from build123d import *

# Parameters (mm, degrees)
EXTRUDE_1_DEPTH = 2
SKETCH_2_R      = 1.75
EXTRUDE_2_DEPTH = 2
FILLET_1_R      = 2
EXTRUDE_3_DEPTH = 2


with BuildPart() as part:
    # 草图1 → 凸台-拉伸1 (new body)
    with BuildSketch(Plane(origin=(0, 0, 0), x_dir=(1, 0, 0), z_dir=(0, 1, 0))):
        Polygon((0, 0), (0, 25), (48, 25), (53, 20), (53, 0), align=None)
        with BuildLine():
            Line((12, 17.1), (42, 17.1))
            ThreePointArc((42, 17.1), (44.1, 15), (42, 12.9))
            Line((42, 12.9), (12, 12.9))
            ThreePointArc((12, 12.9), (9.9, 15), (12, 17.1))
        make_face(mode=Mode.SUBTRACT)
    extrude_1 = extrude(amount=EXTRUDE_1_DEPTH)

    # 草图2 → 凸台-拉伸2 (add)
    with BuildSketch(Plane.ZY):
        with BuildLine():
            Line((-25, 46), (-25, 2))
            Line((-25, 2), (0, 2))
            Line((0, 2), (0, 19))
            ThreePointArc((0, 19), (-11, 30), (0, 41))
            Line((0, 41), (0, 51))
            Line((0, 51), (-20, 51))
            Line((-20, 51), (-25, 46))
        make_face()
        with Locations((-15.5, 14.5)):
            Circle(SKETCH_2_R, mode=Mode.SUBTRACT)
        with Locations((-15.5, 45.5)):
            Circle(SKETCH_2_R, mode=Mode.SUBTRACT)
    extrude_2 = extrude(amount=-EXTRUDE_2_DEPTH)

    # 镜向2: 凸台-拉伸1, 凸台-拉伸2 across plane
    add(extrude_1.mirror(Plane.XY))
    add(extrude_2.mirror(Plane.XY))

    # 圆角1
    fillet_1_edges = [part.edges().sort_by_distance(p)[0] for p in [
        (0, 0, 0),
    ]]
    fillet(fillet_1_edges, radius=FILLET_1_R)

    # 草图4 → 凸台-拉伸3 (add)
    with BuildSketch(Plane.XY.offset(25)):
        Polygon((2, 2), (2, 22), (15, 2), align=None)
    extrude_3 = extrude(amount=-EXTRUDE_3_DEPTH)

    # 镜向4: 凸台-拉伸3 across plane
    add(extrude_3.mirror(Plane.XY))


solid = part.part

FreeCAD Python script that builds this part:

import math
import FreeCAD as App
import Part
import Sketcher
Q = App.Units.Quantity


def edges_at(feature, points):
    """Names of the edges that pass closest to the given points."""
    edges = feature.Shape.Edges
    near = lambda p: min(range(len(edges)), key=lambda i: edges[i].distToShape(Part.Vertex(*p))[0])
    return sorted({f"Edge{near(p) + 1}" for p in points})


def add_polygon(sketch, points):
    """Adds a closed chain of lines whose ends are joined by coincident constraints."""
    first, n = sketch.GeometryCount, len(points)
    for a, b in zip(points, points[1:] + points[:1]):
        sketch.addGeometry(Part.LineSegment(App.Vector(*a, 0), App.Vector(*b, 0)), False)
    for i in range(n):
        sketch.addConstraint(Sketcher.Constraint("Coincident", first + i, 2, first + (i + 1) % n, 1))

doc = App.newDocument("Part")
params = doc.addObject("Spreadsheet::Sheet", "Params")
for row, (alias, value) in enumerate([
    ("sketch1_radius", "2.1 mm"),
    ("sketch1_width", "53 mm"),
    ("sketch1_width2", "48 mm"),
    ("sketch1_width3", "30 mm"),
    ("sketch1_height", "25 mm"),
    ("pad1_length", "2 mm"),
    ("sketch2_radius", "11 mm"),
    ("sketch2_diameter", "3.5 mm"),
    ("sketch2_width", "44 mm"),
    ("sketch2_width2", "17 mm"),
    ("sketch2_width3", "10 mm"),
    ("pad2_length", "2 mm"),
    ("fillet_radius", "2 mm"),
    ("sketch3_width", "13 mm"),
    ("sketch3_height", "20 mm"),
    ("pad3_length", "2 mm"),
], start=1):
    params.set(f"A{row}", alias)
    params.set(f"B{row}", "=" + value)
    params.setAlias(f"B{row}", alias)

body = doc.addObject("PartDesign::Body", "Body")

# Sketch on XZ plane
sketch1 = doc.addObject("Sketcher::SketchObject", "Sketch")
body.addObject(sketch1)
sketch1.AttachmentSupport = (doc.XZ_Plane, [""])
sketch1.MapMode = "FlatFace"
add_polygon(sketch1, [(0, -25), (0, 0), (53, 0), (53, -20), (48, -25)])  # lines 0-4
sketch1.addGeometry(Part.LineSegment(App.Vector(12, -17.1, 0), App.Vector(42, -17.1, 0)), False)  # 5
sketch1.addGeometry(Part.ArcOfCircle(Part.Circle(App.Vector(42, -15, 0), App.Vector(0, 0, 1), 2.1), math.radians(-90), math.radians(90)), False)  # 6
sketch1.addGeometry(Part.LineSegment(App.Vector(42, -12.9, 0), App.Vector(12, -12.9, 0)), False)  # 7
sketch1.addGeometry(Part.ArcOfCircle(Part.Circle(App.Vector(12, -15, 0), App.Vector(0, 0, 1), 2.1), math.radians(90), math.radians(270)), False)  # 8
sketch1.addConstraint(Sketcher.Constraint("Tangent", 5, 2, 6, 1))
sketch1.addConstraint(Sketcher.Constraint("Tangent", 6, 2, 7, 1))
sketch1.addConstraint(Sketcher.Constraint("Tangent", 7, 2, 8, 1))
sketch1.addConstraint(Sketcher.Constraint("Tangent", 8, 2, 5, 1))
sketch1.addConstraint(Sketcher.Constraint("Vertical", 0))
sketch1.addConstraint(Sketcher.Constraint("Horizontal", 1))
sketch1.addConstraint(Sketcher.Constraint("Vertical", 2))
sketch1.addConstraint(Sketcher.Constraint("Horizontal", 4))
sketch1.addConstraint(Sketcher.Constraint("Horizontal", 5))
sketch1.addConstraint(Sketcher.Constraint("Horizontal", 7))
sketch1.addConstraint(Sketcher.Constraint("Coincident", 0, 2, -1, 1))
sketch1.addConstraint(Sketcher.Constraint("Radius", 6, Q("2.1 mm")))
sketch1.addConstraint(Sketcher.Constraint("DistanceX", 1, 1, 1, 2, Q("53 mm")))
sketch1.addConstraint(Sketcher.Constraint("DistanceX", 4, 2, 4, 1, Q("48 mm")))
sketch1.addConstraint(Sketcher.Constraint("DistanceX", 5, 1, 5, 2, Q("30 mm")))
sketch1.addConstraint(Sketcher.Constraint("DistanceY", 0, 1, 0, 2, Q("25 mm")))
sketch1.addConstraint(Sketcher.Constraint("DistanceY", 2, 2, 2, 1, Q("20 mm")))
sketch1.addConstraint(Sketcher.Constraint("DistanceX", -1, 1, 6, 3, Q("42 mm")))
sketch1.addConstraint(Sketcher.Constraint("DistanceY", 6, 3, -1, 1, Q("15 mm")))
sketch1.setExpression("Constraints[16]", "Params.sketch1_radius")
sketch1.setExpression("Constraints[17]", "Params.sketch1_width")
sketch1.setExpression("Constraints[18]", "Params.sketch1_width2")
sketch1.setExpression("Constraints[19]", "Params.sketch1_width3")
sketch1.setExpression("Constraints[20]", "Params.sketch1_height")
pad1 = doc.addObject("PartDesign::Pad", "Pad")
body.addObject(pad1)
pad1.Profile = sketch1
pad1.setExpression("Length", "Params.pad1_length")
pad1.Reversed = True

# Sketch on YZ plane
sketch2 = doc.addObject("Sketcher::SketchObject", "Sketch001")
body.addObject(sketch2)
sketch2.AttachmentSupport = (doc.YZ_Plane, [""])
sketch2.MapMode = "FlatFace"
sketch2.addGeometry(Part.LineSegment(App.Vector(46, -25, 0), App.Vector(2, -25, 0)), False)
sketch2.addGeometry(Part.LineSegment(App.Vector(2, -25, 0), App.Vector(2, 0, 0)), False)
sketch2.addGeometry(Part.LineSegment(App.Vector(2, 0, 0), App.Vector(19, 0, 0)), False)
sketch2.addGeometry(Part.ArcOfCircle(Part.Circle(App.Vector(30, 0, 0), App.Vector(0, 0, 1), 11), math.radians(180), math.radians(360)), False)
sketch2.addGeometry(Part.LineSegment(App.Vector(41, 0, 0), App.Vector(51, 0, 0)), False)
sketch2.addGeometry(Part.LineSegment(App.Vector(51, 0, 0), App.Vector(51, -20, 0)), False)
sketch2.addGeometry(Part.LineSegment(App.Vector(51, -20, 0), App.Vector(46, -25, 0)), False)
sketch2.addGeometry(Part.Circle(App.Vector(14.5, -15.5, 0), App.Vector(0, 0, 1), 1.75), False)
sketch2.addGeometry(Part.Circle(App.Vector(45.5, -15.5, 0), App.Vector(0, 0, 1), 1.75), False)
sketch2.addConstraint(Sketcher.Constraint("Coincident", 0, 2, 1, 1))
sketch2.addConstraint(Sketcher.Constraint("Coincident", 1, 2, 2, 1))
sketch2.addConstraint(Sketcher.Constraint("Coincident", 2, 2, 3, 1))
sketch2.addConstraint(Sketcher.Constraint("Coincident", 3, 2, 4, 1))
sketch2.addConstraint(Sketcher.Constraint("Coincident", 4, 2, 5, 1))
sketch2.addConstraint(Sketcher.Constraint("Coincident", 5, 2, 6, 1))
sketch2.addConstraint(Sketcher.Constraint("Coincident", 6, 2, 0, 1))
sketch2.addConstraint(Sketcher.Constraint("Horizontal", 0))
sketch2.addConstraint(Sketcher.Constraint("Vertical", 1))
sketch2.addConstraint(Sketcher.Constraint("Horizontal", 2))
sketch2.addConstraint(Sketcher.Constraint("Horizontal", 4))
sketch2.addConstraint(Sketcher.Constraint("Vertical", 5))
sketch2.addConstraint(Sketcher.Constraint("Equal", 7, 8))
sketch2.addConstraint(Sketcher.Constraint("PointOnObject", 3, 3, -1))
sketch2.addConstraint(Sketcher.Constraint("PointOnObject", 1, 2, -1))
sketch2.addConstraint(Sketcher.Constraint("PointOnObject", 3, 2, -1))
sketch2.addConstraint(Sketcher.Constraint("Horizontal", 7, 3, 8, 3))
sketch2.addConstraint(Sketcher.Constraint("Radius", 3, Q("11 mm")))
sketch2.addConstraint(Sketcher.Constraint("Diameter", 7, Q("3.5 mm")))
sketch2.addConstraint(Sketcher.Constraint("DistanceX", 0, 2, 0, 1, Q("44 mm")))
sketch2.addConstraint(Sketcher.Constraint("DistanceX", 2, 1, 2, 2, Q("17 mm")))
sketch2.addConstraint(Sketcher.Constraint("DistanceX", 4, 1, 4, 2, Q("10 mm")))
sketch2.addConstraint(Sketcher.Constraint("DistanceY", 1, 1, 1, 2, Q("25 mm")))
sketch2.addConstraint(Sketcher.Constraint("DistanceY", 5, 2, 5, 1, Q("20 mm")))
sketch2.addConstraint(Sketcher.Constraint("DistanceX", -1, 1, 3, 3, Q("30 mm")))
sketch2.addConstraint(Sketcher.Constraint("DistanceX", 7, 3, 8, 3, Q("31 mm")))
sketch2.addConstraint(Sketcher.Constraint("DistanceX", -1, 1, 7, 3, Q("14.5 mm")))
sketch2.addConstraint(Sketcher.Constraint("DistanceY", 7, 3, -1, 1, Q("15.5 mm")))
sketch2.setExpression("Constraints[17]", "Params.sketch2_radius")
sketch2.setExpression("Constraints[18]", "Params.sketch2_diameter")
sketch2.setExpression("Constraints[19]", "Params.sketch2_width")
sketch2.setExpression("Constraints[20]", "Params.sketch2_width2")
sketch2.setExpression("Constraints[21]", "Params.sketch2_width3")
pad2 = doc.addObject("PartDesign::Pad", "Pad001")
body.addObject(pad2)
pad2.Profile = sketch2
pad2.setExpression("Length", "Params.pad2_length")
doc.recompute()

mirrored = doc.addObject("PartDesign::Mirrored", "Mirrored")
body.addObject(mirrored)
mirrored.Originals = [pad1, pad2]
mirrored.MirrorPlane = (doc.XY_Plane, [""])
body.Tip = mirrored
doc.recompute()

fillet = doc.addObject("PartDesign::Fillet", "Fillet")
body.addObject(fillet)
fillet.Base = (mirrored, edges_at(mirrored, [(0, 0, 0)]))
fillet.setExpression("Radius", "Params.fillet_radius")

# Sketch on XY plane
sketch3 = doc.addObject("Sketcher::SketchObject", "Sketch002")
body.addObject(sketch3)
sketch3.AttachmentSupport = (doc.XY_Plane, [""])
sketch3.MapMode = "FlatFace"
sketch3.AttachmentOffset = App.Placement(App.Vector(0, 0, 25), App.Rotation())
add_polygon(sketch3, [(2, 22), (2, 2), (15, 2)])  # lines 0-2
sketch3.addConstraint(Sketcher.Constraint("Vertical", 0))
sketch3.addConstraint(Sketcher.Constraint("Horizontal", 1))
sketch3.addConstraint(Sketcher.Constraint("DistanceX", 1, 1, 1, 2, Q("13 mm")))
sketch3.addConstraint(Sketcher.Constraint("DistanceY", 0, 2, 0, 1, Q("20 mm")))
sketch3.addConstraint(Sketcher.Constraint("DistanceX", -1, 1, 0, 2, Q("2 mm")))
sketch3.addConstraint(Sketcher.Constraint("DistanceY", -1, 1, 0, 2, Q("2 mm")))
sketch3.setExpression("Constraints[5]", "Params.sketch3_width")
sketch3.setExpression("Constraints[6]", "Params.sketch3_height")
pad3 = doc.addObject("PartDesign::Pad", "Pad002")
body.addObject(pad3)
pad3.Profile = sketch3
pad3.setExpression("Length", "Params.pad3_length")
pad3.Reversed = True
doc.recompute()

mirrored2 = doc.addObject("PartDesign::Mirrored", "Mirrored001")
body.addObject(mirrored2)
mirrored2.Originals = [pad3]
mirrored2.MirrorPlane = (doc.XY_Plane, [""])
body.Tip = mirrored2

doc.recompute()
